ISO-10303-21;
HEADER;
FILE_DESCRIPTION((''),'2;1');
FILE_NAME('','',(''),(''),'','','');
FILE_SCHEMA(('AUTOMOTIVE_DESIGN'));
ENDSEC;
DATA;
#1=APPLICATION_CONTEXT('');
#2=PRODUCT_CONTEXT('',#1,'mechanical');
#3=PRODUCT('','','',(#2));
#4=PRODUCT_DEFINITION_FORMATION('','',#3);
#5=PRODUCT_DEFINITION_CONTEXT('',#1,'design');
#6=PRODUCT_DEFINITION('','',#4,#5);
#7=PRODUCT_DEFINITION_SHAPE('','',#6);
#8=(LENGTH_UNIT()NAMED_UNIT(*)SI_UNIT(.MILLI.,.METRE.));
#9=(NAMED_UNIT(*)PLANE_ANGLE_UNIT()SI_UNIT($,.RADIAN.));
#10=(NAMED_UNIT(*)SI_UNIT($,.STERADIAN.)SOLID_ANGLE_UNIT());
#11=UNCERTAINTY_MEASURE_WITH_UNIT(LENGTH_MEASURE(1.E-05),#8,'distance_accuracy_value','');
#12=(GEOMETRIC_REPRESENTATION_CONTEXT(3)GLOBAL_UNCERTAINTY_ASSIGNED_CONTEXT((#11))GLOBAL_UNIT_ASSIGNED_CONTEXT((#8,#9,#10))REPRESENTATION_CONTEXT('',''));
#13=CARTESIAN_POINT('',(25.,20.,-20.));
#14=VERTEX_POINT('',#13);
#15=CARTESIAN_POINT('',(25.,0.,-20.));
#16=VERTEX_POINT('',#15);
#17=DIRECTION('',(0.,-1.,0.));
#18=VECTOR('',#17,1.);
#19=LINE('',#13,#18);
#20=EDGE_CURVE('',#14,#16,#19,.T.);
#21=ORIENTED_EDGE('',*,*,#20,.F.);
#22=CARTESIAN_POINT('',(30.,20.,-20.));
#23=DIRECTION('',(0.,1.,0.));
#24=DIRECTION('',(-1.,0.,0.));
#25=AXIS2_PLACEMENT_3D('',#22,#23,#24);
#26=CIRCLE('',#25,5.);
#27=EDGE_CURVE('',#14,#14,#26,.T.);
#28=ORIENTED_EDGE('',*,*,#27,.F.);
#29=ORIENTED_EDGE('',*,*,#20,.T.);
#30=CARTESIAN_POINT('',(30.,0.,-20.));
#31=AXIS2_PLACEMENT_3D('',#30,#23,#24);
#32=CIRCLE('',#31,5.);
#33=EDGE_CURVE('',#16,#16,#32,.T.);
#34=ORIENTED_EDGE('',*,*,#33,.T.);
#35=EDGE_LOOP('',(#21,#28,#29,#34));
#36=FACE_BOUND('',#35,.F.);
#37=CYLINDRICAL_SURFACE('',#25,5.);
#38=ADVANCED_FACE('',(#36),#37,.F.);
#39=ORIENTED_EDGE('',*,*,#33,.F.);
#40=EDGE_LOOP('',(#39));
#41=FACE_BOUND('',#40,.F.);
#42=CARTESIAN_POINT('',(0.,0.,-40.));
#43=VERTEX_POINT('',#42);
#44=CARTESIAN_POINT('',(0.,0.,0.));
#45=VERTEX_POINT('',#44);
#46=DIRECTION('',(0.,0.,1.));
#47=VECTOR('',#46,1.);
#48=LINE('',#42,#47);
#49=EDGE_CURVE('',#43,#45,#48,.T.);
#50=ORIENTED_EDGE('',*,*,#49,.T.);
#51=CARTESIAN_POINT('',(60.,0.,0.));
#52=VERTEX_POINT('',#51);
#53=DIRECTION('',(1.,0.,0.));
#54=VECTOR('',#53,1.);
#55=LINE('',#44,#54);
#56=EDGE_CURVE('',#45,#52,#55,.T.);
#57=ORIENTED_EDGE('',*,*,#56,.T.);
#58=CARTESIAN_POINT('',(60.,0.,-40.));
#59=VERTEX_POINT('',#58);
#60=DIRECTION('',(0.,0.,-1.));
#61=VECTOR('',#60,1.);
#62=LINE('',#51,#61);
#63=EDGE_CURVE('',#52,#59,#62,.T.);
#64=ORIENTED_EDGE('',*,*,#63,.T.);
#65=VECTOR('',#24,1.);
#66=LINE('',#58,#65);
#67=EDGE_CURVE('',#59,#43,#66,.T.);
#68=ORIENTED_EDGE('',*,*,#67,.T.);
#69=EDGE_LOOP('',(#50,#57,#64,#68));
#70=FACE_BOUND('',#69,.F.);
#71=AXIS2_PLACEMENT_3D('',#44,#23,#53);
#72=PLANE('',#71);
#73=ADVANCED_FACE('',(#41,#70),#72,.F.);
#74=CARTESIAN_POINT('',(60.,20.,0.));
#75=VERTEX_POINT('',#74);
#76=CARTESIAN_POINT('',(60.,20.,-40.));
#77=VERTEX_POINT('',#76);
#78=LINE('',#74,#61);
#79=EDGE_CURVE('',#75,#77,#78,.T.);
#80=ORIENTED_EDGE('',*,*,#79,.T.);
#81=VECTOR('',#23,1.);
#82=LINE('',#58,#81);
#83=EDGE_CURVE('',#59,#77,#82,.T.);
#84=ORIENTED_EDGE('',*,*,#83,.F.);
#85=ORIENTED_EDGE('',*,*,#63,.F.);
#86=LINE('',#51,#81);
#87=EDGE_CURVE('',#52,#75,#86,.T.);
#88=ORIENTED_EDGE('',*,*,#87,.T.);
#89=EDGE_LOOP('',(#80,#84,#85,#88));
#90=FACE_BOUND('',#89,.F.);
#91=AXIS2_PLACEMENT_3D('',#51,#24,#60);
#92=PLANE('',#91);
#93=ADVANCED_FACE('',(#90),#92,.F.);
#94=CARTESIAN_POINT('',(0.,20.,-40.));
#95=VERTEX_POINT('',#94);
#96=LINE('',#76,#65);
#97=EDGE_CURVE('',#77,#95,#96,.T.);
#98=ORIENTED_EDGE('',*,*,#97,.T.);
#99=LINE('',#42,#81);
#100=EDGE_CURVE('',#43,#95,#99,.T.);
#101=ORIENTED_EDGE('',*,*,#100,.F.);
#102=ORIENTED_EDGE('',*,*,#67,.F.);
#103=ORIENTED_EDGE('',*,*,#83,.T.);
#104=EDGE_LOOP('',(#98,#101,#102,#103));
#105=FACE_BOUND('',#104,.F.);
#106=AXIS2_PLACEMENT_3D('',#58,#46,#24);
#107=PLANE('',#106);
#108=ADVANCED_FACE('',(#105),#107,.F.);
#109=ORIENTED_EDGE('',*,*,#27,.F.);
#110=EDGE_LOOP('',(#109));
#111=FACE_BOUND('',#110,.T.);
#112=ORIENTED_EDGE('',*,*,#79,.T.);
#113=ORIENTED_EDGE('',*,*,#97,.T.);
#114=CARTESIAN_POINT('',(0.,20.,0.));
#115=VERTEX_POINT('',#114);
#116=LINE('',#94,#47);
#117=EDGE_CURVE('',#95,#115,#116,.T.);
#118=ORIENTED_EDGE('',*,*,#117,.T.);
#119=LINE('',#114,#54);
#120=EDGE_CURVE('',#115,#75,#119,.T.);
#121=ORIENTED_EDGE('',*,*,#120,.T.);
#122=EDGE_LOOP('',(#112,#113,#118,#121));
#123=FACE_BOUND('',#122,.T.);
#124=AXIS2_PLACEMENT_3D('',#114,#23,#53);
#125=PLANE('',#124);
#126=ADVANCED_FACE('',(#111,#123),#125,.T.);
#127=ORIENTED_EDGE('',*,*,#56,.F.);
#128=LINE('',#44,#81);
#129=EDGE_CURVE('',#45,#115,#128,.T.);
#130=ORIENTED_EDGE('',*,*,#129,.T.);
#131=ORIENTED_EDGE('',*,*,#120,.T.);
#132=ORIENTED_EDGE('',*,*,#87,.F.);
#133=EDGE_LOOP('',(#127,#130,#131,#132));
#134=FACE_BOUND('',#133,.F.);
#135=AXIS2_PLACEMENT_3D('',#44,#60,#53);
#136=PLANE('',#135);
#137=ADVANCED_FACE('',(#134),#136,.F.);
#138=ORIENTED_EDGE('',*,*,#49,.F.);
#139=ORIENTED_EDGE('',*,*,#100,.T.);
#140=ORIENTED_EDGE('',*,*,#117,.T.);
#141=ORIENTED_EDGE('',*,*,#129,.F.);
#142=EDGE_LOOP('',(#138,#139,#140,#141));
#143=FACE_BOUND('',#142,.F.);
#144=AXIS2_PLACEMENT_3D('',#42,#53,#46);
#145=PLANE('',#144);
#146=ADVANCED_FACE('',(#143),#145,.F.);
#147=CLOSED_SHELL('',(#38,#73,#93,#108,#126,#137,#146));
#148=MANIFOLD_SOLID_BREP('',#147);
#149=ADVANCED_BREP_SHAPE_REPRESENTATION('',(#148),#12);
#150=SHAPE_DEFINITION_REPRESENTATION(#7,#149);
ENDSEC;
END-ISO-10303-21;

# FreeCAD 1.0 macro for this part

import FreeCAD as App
import Part
import Sketcher
Q = App.Units.Quantity


def add_polygon(sketch, points):
    """Adds a closed chain of lines whose ends are joined by coincident constraints."""
    first, n = sketch.GeometryCount, len(points)
    for a, b in zip(points, points[1:] + points[:1]):
        sketch.addGeometry(Part.LineSegment(App.Vector(*a, 0), App.Vector(*b, 0)), False)
    for i in range(n):
        sketch.addConstraint(Sketcher.Constraint("Coincident", first + i, 2, first + (i + 1) % n, 1))

doc = App.newDocument("Part")
body = doc.addObject("PartDesign::Body", "Body")

# Sketch on XZ plane
sketch1 = doc.addObject("Sketcher::SketchObject", "Sketch")
body.addObject(sketch1)
sketch1.AttachmentSupport = (doc.XZ_Plane, [""])
sketch1.MapMode = "FlatFace"
add_polygon(sketch1, [(0, -40), (0, 0), (60, 0), (60, -40)])  # lines 0-3
sketch1.addConstraint(Sketcher.Constraint("Vertical", 0))
sketch1.addConstraint(Sketcher.Constraint("Horizontal", 1))
sketch1.addConstraint(Sketcher.Constraint("Vertical", 2))
sketch1.addConstraint(Sketcher.Constraint("Horizontal", 3))
sketch1.addConstraint(Sketcher.Constraint("Coincident", 0, 2, -1, 1))
sketch1.addConstraint(Sketcher.Constraint("DistanceX", 1, 1, 1, 2, Q("60 mm")))
sketch1.addConstraint(Sketcher.Constraint("DistanceY", 0, 1, 0, 2, Q("40 mm")))
pad1 = doc.addObject("PartDesign::Pad", "Pad")
body.addObject(pad1)
pad1.Profile = sketch1
pad1.Length = 20
pad1.Reversed = True

# Sketch on XZ plane
sketch2 = doc.addObject("Sketcher::SketchObject", "Sketch001")
body.addObject(sketch2)
sketch2.AttachmentSupport = (doc.XZ_Plane, [""])
sketch2.MapMode = "FlatFace"
sketch2.AttachmentOffset = App.Placement(App.Vector(0, 0, -20), App.Rotation())
sketch2.addGeometry(Part.Circle(App.Vector(30, -20, 0), App.Vector(0, 0, 1), 5), False)
sketch2.addConstraint(Sketcher.Constraint("Diameter", 0, Q("10 mm")))
sketch2.addConstraint(Sketcher.Constraint("DistanceX", -1, 1, 0, 3, Q("30 mm")))
sketch2.addConstraint(Sketcher.Constraint("DistanceY", 0, 3, -1, 1, Q("20 mm")))
pocket1 = doc.addObject("PartDesign::Pocket", "Pocket")
body.addObject(pocket1)
pocket1.Profile = sketch2
pocket1.Type = "ThroughAll"
pocket1.Reversed = True

doc.recompute()
